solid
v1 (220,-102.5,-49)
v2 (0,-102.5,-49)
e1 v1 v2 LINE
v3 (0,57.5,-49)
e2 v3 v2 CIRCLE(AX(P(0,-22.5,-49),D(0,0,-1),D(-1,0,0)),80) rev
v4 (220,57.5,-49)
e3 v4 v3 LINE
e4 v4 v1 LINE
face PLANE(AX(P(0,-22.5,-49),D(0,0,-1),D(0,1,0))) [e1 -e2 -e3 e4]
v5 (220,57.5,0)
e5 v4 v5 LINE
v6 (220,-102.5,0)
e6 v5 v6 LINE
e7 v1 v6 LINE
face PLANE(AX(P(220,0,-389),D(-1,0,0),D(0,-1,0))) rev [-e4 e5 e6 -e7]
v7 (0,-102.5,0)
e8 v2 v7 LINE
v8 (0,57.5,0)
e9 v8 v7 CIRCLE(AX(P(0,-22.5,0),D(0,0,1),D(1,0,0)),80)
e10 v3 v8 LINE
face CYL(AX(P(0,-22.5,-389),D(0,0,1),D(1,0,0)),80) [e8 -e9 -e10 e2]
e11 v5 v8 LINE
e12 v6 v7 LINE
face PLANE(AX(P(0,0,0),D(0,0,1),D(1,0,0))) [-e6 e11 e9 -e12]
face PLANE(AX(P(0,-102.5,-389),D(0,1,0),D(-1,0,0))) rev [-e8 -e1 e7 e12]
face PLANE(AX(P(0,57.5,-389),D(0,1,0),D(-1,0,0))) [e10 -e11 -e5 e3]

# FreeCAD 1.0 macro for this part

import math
import FreeCAD as App
import Part
import Sketcher

V = App.Vector
Q = App.Units.Quantity

doc = App.newDocument("Part")
body = doc.addObject("PartDesign::Body", "Body")

# Sketch on XY plane
sketch1 = body.newObject("Sketcher::SketchObject", "Sketch")
sketch1.AttachmentSupport = (doc.getObject("XY_Plane"), [""])
sketch1.MapMode = "FlatFace"
sketch1.addGeometry(Part.LineSegment(V(0, -102, 0), V(220, -102, 0)), False)
sketch1.addGeometry(Part.LineSegment(V(220, -102, 0), V(220, 58, 0)), False)
sketch1.addGeometry(Part.LineSegment(V(220, 58, 0), V(0, 58, 0)), False)
sketch1.addGeometry(Part.ArcOfCircle(Part.Circle(V(0, -22, 0), V(0, 0, 1), 80), math.radians(90), math.radians(270)), False)
sketch1.addConstraint(Sketcher.Constraint("Coincident", 0, 2, 1, 1))
sketch1.addConstraint(Sketcher.Constraint("Coincident", 1, 2, 2, 1))
sketch1.addConstraint(Sketcher.Constraint("Tangent", 2, 2, 3, 1))
sketch1.addConstraint(Sketcher.Constraint("Tangent", 3, 2, 0, 1))
sketch1.addConstraint(Sketcher.Constraint("Horizontal", 0))
sketch1.addConstraint(Sketcher.Constraint("Vertical", 1))
sketch1.addConstraint(Sketcher.Constraint("Horizontal", 2))
sketch1.addConstraint(Sketcher.Constraint("PointOnObject", 3, 3, -2))
sketch1.addConstraint(Sketcher.Constraint("Radius", 3, Q("80 mm")))
sketch1.addConstraint(Sketcher.Constraint("DistanceX", 0, 1, 0, 2, Q("220 mm")))
sketch1.addConstraint(Sketcher.Constraint("DistanceY", 3, 3, -1, 1, Q("22.5 mm")))
pad1 = body.newObject("PartDesign::Pad", "Pad")
pad1.Profile = sketch1
pad1.Length = 49
pad1.Reversed = True

doc.recompute()
